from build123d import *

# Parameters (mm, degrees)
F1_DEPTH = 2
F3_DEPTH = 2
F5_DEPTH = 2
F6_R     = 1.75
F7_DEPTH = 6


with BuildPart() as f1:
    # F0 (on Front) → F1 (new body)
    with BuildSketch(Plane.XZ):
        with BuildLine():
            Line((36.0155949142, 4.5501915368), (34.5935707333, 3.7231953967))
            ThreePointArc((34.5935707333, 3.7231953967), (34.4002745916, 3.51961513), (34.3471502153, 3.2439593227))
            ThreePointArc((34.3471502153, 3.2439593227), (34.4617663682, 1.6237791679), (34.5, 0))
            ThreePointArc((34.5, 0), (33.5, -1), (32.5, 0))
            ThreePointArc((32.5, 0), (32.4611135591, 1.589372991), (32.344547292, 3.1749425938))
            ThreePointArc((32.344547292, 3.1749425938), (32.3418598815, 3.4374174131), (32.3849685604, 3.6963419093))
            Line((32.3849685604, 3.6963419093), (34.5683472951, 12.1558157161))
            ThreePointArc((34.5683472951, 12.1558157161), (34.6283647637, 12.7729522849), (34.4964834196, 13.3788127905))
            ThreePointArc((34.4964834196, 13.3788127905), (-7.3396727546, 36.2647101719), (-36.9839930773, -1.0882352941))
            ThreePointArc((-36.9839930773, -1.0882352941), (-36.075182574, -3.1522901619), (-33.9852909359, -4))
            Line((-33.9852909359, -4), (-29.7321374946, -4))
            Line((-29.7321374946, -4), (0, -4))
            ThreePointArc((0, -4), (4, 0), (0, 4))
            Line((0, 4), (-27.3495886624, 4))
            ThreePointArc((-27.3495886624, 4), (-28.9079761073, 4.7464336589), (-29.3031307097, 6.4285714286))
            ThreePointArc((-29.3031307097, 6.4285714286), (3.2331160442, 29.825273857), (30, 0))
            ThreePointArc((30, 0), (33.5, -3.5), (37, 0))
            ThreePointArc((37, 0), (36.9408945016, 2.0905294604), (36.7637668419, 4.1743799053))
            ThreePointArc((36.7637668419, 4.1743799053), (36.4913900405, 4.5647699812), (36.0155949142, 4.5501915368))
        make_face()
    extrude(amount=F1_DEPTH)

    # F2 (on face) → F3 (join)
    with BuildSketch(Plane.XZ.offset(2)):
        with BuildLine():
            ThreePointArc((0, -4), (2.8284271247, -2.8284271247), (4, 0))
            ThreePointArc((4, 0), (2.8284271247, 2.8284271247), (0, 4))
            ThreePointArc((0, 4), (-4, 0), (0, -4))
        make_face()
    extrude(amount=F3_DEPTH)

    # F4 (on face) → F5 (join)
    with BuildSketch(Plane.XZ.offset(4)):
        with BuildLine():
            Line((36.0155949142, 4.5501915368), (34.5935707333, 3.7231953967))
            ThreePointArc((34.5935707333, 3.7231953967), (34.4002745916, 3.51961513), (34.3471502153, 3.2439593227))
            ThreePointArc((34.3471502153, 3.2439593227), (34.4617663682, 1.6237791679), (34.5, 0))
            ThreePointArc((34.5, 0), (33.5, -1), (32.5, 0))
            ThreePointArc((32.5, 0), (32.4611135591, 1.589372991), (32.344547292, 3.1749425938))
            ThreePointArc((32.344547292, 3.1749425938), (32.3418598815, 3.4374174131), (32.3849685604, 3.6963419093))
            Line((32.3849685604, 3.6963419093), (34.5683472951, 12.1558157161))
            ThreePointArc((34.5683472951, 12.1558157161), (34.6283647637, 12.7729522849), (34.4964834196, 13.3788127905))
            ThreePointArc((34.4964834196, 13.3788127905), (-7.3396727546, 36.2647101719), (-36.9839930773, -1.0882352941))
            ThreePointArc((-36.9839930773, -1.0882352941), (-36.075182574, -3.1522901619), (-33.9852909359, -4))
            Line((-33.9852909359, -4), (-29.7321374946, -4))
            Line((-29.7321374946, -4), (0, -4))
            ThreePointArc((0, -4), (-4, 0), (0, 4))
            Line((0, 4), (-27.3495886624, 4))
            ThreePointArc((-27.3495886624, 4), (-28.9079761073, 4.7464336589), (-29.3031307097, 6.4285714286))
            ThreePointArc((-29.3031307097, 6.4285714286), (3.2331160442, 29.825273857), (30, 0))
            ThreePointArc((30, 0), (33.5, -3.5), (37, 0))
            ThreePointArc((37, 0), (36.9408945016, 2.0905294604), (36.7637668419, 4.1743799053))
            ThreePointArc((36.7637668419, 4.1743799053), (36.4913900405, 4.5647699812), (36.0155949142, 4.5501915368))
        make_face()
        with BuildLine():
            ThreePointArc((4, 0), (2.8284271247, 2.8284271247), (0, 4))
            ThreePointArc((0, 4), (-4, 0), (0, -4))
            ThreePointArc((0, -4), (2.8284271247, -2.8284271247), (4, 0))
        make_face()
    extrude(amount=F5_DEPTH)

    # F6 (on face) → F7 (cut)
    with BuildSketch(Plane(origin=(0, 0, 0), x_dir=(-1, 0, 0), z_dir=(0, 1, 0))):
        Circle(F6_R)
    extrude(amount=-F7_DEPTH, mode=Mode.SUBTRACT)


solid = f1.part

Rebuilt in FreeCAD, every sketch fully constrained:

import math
import FreeCAD as App
import Part
import Sketcher

V = App.Vector
Q = App.Units.Quantity

doc = App.newDocument("Part")
params = doc.addObject("Spreadsheet::Sheet", "Params")
for row, (alias, value) in enumerate([
    ("sketch1_radius", "1 mm"),
    ("sketch1_radius2", "2 mm"),
    ("sketch1_radius3", "37 mm"),
    ("sketch1_radius4", "3 mm"),
    ("sketch1_radius5", "4 mm"),
    ("pad1_length", "2 mm"),
    ("sketch2_radius", "4 mm"),
    ("pad2_length", "2 mm"),
    ("sketch3_radius", "1 mm"),
    ("sketch3_radius2", "2 mm"),
    ("sketch3_radius3", "37 mm"),
    ("sketch3_radius4", "3 mm"),
    ("sketch3_radius5", "4 mm"),
    ("pad3_length", "2 mm"),
    ("sketch4_diameter", "3.5 mm"),
    ("pocket1_length", "6 mm"),
], start=1):
    params.set(f"A{row}", alias)
    params.set(f"B{row}", "=" + value)
    params.setAlias(f"B{row}", alias)

body = doc.addObject("PartDesign::Body", "Body")

# Sketch on XZ plane
sketch1 = body.newObject("Sketcher::SketchObject", "Sketch")
sketch1.AttachmentSupport = (doc.getObject("XZ_Plane"), [""])
sketch1.MapMode = "FlatFace"
sketch1.addGeometry([
    Part.LineSegment(V(36.015595, 4.550192, 0), V(34.593571, 3.723195, 0)),  # 0
    Part.ArcOfCircle(Part.Circle(V(34.844935, 3.290973, 0), V(0, 0, 1), 0.5), math.radians(120.180683), math.radians(185.395367)),  # 1
    Part.ArcOfCircle(Part.Circle(V(0, 0, 0), V(0, 0, 1), 34.5), math.radians(0), math.radians(5.395367)),  # 2
    Part.ArcOfCircle(Part.Circle(V(33.5, 0, 0), V(0, 0, 1), 1), math.radians(180), math.radians(360)),  # 3
    Part.ArcOfCircle(Part.Circle(V(0, 0, 0), V(0, 0, 1), 32.5), math.radians(0), math.radians(5.606197)),  # 4
    Part.ArcOfCircle(Part.Circle(V(33.837373, 3.321478, 0), V(0, 0, 1), 1.5), math.radians(165.527873), math.radians(185.606197)),  # 5
    Part.LineSegment(V(32.384969, 3.696342, 0), V(34.568347, 12.155816, 0)),  # 6
    Part.ArcOfCircle(Part.Circle(V(32.631809, 12.655634, 0), V(0, 0, 1), 2), math.radians(-14.472127), math.radians(21.197847)),  # 7
    Part.ArcOfCircle(Part.Circle(V(0, 0, 0), V(0, 0, 1), 37), math.radians(21.197847), math.radians(181.685413)),  # 8
    Part.ArcOfCircle(Part.Circle(V(-33.985291, -1, 0), V(0, 0, 1), 3), math.radians(-178.314587), math.radians(-90)),  # 9
    Part.LineSegment(V(-33.985291, -4, 0), V(0, -4, 0)),  # 10
    Part.ArcOfCircle(Part.Circle(V(0, 0, 0), V(0, 0, 1), 4), math.radians(-90), math.radians(90)),  # 11
    Part.LineSegment(V(0, 4, 0), V(-27.349589, 4, 0)),  # 12
    Part.ArcOfCircle(Part.Circle(V(-27.349589, 6, 0), V(0, 0, 1), 2), math.radians(167.626375), math.radians(270)),  # 13
    Part.ArcOfCircle(Part.Circle(V(0, 0, 0), V(0, 0, 1), 30), math.radians(0), math.radians(167.626375)),  # 14
    Part.ArcOfCircle(Part.Circle(V(33.5, 0, 0), V(0, 0, 1), 3.5), math.radians(180), math.radians(360)),  # 15
    Part.ArcOfCircle(Part.Circle(V(0, 0, 0), V(0, 0, 1), 37), math.radians(0), math.radians(6.477964)),  # 16
    Part.ArcOfCircle(Part.Circle(V(36.266959, 4.117969, 0), V(0, 0, 1), 0.5), math.radians(6.477964), math.radians(120.180683)),  # 17
], False)
sketch1.addConstraint([
    Sketcher.Constraint("Tangent", 0, 2, 1, 1),
    Sketcher.Constraint("Tangent", 1, 2, 2, 2),
    Sketcher.Constraint("Tangent", 2, 1, 3, 2),
    Sketcher.Constraint("Tangent", 3, 1, 4, 1),
    Sketcher.Constraint("Tangent", 4, 2, 5, 2),
    Sketcher.Constraint("Tangent", 5, 1, 6, 1),
    Sketcher.Constraint("Tangent", 6, 2, 7, 1),
    Sketcher.Constraint("Tangent", 7, 2, 8, 1),
    Sketcher.Constraint("Tangent", 8, 2, 9, 1),
    Sketcher.Constraint("Tangent", 9, 2, 10, 1),
    Sketcher.Constraint("Tangent", 10, 2, 11, 1),
    Sketcher.Constraint("Tangent", 11, 2, 12, 1),
    Sketcher.Constraint("Tangent", 12, 2, 13, 2),
    Sketcher.Constraint("Tangent", 13, 1, 14, 2),
    Sketcher.Constraint("Tangent", 14, 1, 15, 1),
    Sketcher.Constraint("Tangent", 15, 2, 16, 1),
    Sketcher.Constraint("Tangent", 16, 2, 17, 1),
    Sketcher.Constraint("Tangent", 17, 2, 0, 1),
    Sketcher.Constraint("Horizontal", 10),
    Sketcher.Constraint("Horizontal", 12),
    Sketcher.Constraint("Coincident", 2, 3, -1, 1),
    Sketcher.Constraint("Coincident", 4, 3, -1, 1),
    Sketcher.Constraint("Coincident", 8, 3, -1, 1),
    Sketcher.Constraint("Coincident", 11, 3, -1, 1),
    Sketcher.Constraint("Coincident", 14, 3, -1, 1),
    Sketcher.Constraint("Coincident", 16, 3, -1, 1),
    Sketcher.Constraint("Coincident", 15, 3, 3, 3),
    Sketcher.Constraint("Equal", 7, 13),
    Sketcher.Constraint("Equal", 8, 16),
    Sketcher.Constraint("Equal", 1, 17),
    Sketcher.Constraint("PointOnObject", 3, 3, -1),
    Sketcher.Constraint("Radius", 3, Q("1 mm")),
    Sketcher.Constraint("Radius", 7, Q("2 mm")),
    Sketcher.Constraint("Radius", 8, Q("37 mm")),
    Sketcher.Constraint("Radius", 9, Q("3 mm")),
    Sketcher.Constraint("Radius", 11, Q("4 mm")),
    Sketcher.Constraint("Radius", 14, Q("30 mm")),
    Sketcher.Constraint("Radius", 1, Q("0.5 mm")),
    Sketcher.Constraint("Radius", 5, Q("1.5 mm")),
    Sketcher.Constraint("DistanceX", 5, 3, 0, 2, Q("0.756198 mm")),
    Sketcher.Constraint("DistanceY", 4, 2, 5, 1, Q("0.521399 mm")),
    Sketcher.Constraint("DistanceY", 5, 3, 16, 2, Q("0.852901 mm")),
    Sketcher.Constraint("DistanceY", -1, 1, 5, 3, Q("3.321478 mm")),
])
sketch1.setExpression("Constraints[31]", "Params.sketch1_radius")
sketch1.setExpression("Constraints[32]", "Params.sketch1_radius2")
sketch1.setExpression("Constraints[33]", "Params.sketch1_radius3")
sketch1.setExpression("Constraints[34]", "Params.sketch1_radius4")
sketch1.setExpression("Constraints[35]", "Params.sketch1_radius5")
pad1 = body.newObject("PartDesign::Pad", "Pad")
pad1.Profile = sketch1
pad1.setExpression("Length", "Params.pad1_length")

# Sketch on XZ plane
sketch2 = body.newObject("Sketcher::SketchObject", "Sketch001")
sketch2.AttachmentSupport = (doc.getObject("XZ_Plane"), [""])
sketch2.MapMode = "FlatFace"
sketch2.AttachmentOffset = App.Placement(V(0, 0, 2), App.Rotation())
sketch2.addGeometry([
    Part.ArcOfCircle(Part.Circle(V(0, 0, 0), V(0, 0, 1), 4), math.radians(-90), math.radians(0)),
    Part.ArcOfCircle(Part.Circle(V(0, 0, 0), V(0, 0, 1), 4), math.radians(0), math.radians(90)),
    Part.ArcOfCircle(Part.Circle(V(0, 0, 0), V(0, 0, 1), 4), math.radians(90), math.radians(270)),
], False)
sketch2.addConstraint([
    Sketcher.Constraint("Tangent", 0, 2, 1, 1),
    Sketcher.Constraint("Tangent", 1, 2, 2, 1),
    Sketcher.Constraint("Tangent", 2, 2, 0, 1),
    Sketcher.Constraint("Coincident", 0, 3, -1, 1),
    Sketcher.Constraint("PointOnObject", 0, 2, -1),
    Sketcher.Constraint("PointOnObject", 1, 2, -2),
    Sketcher.Constraint("PointOnObject", 2, 2, -2),
    Sketcher.Constraint("Radius", 0, Q("4 mm")),
])
sketch2.setExpression("Constraints[7]", "Params.sketch2_radius")
pad2 = body.newObject("PartDesign::Pad", "Pad001")
pad2.Profile = sketch2
pad2.setExpression("Length", "Params.pad2_length")

# Sketch on XZ plane
sketch3 = body.newObject("Sketcher::SketchObject", "Sketch002")
sketch3.AttachmentSupport = (doc.getObject("XZ_Plane"), [""])
sketch3.MapMode = "FlatFace"
sketch3.AttachmentOffset = App.Placement(V(0, 0, 4), App.Rotation())
sketch3.addGeometry([
    Part.LineSegment(V(36.015595, 4.550192, 0), V(34.593571, 3.723195, 0)),  # 0
    Part.ArcOfCircle(Part.Circle(V(34.844935, 3.290973, 0), V(0, 0, 1), 0.5), math.radians(120.180683), math.radians(185.395367)),  # 1
    Part.ArcOfCircle(Part.Circle(V(0, 0, 0), V(0, 0, 1), 34.5), math.radians(0), math.radians(5.395367)),  # 2
    Part.ArcOfCircle(Part.Circle(V(33.5, 0, 0), V(0, 0, 1), 1), math.radians(180), math.radians(360)),  # 3
    Part.ArcOfCircle(Part.Circle(V(0, 0, 0), V(0, 0, 1), 32.5), math.radians(0), math.radians(5.606197)),  # 4
    Part.ArcOfCircle(Part.Circle(V(33.837373, 3.321478, 0), V(0, 0, 1), 1.5), math.radians(165.527873), math.radians(185.606197)),  # 5
    Part.LineSegment(V(32.384969, 3.696342, 0), V(34.568347, 12.155816, 0)),  # 6
    Part.ArcOfCircle(Part.Circle(V(32.631809, 12.655634, 0), V(0, 0, 1), 2), math.radians(-14.472127), math.radians(21.197847)),  # 7
    Part.ArcOfCircle(Part.Circle(V(0, 0, 0), V(0, 0, 1), 37), math.radians(21.197847), math.radians(181.685413)),  # 8
    Part.ArcOfCircle(Part.Circle(V(-33.985291, -1, 0), V(0, 0, 1), 3), math.radians(-178.314587), math.radians(-90)),  # 9
    Part.LineSegment(V(-33.985291, -4, 0), V(0, -4, 0)),  # 10
    Part.ArcOfCircle(Part.Circle(V(0, 0, 0), V(0, 0, 1), 4), math.radians(-90), math.radians(0)),  # 11
    Part.ArcOfCircle(Part.Circle(V(0, 0, 0), V(0, 0, 1), 4), math.radians(0), math.radians(90)),  # 12
    Part.LineSegment(V(0, 4, 0), V(-27.349589, 4, 0)),  # 13
    Part.ArcOfCircle(Part.Circle(V(-27.349589, 6, 0), V(0, 0, 1), 2), math.radians(167.626375), math.radians(270)),  # 14
    Part.ArcOfCircle(Part.Circle(V(0, 0, 0), V(0, 0, 1), 30), math.radians(0), math.radians(167.626375)),  # 15
    Part.ArcOfCircle(Part.Circle(V(33.5, 0, 0), V(0, 0, 1), 3.5), math.radians(180), math.radians(360)),  # 16
    Part.ArcOfCircle(Part.Circle(V(0, 0, 0), V(0, 0, 1), 37), math.radians(0), math.radians(6.477964)),  # 17
    Part.ArcOfCircle(Part.Circle(V(36.266959, 4.117969, 0), V(0, 0, 1), 0.5), math.radians(6.477964), math.radians(120.180683)),  # 18
], False)
sketch3.addConstraint([
    Sketcher.Constraint("Tangent", 0, 2, 1, 1),
    Sketcher.Constraint("Tangent", 1, 2, 2, 2),
    Sketcher.Constraint("Tangent", 2, 1, 3, 2),
    Sketcher.Constraint("Tangent", 3, 1, 4, 1),
    Sketcher.Constraint("Tangent", 4, 2, 5, 2),
    Sketcher.Constraint("Tangent", 5, 1, 6, 1),
    Sketcher.Constraint("Tangent", 6, 2, 7, 1),
    Sketcher.Constraint("Tangent", 7, 2, 8, 1),
    Sketcher.Constraint("Tangent", 8, 2, 9, 1),
    Sketcher.Constraint("Tangent", 9, 2, 10, 1),
    Sketcher.Constraint("Tangent", 10, 2, 11, 1),
    Sketcher.Constraint("Tangent", 11, 2, 12, 1),
    Sketcher.Constraint("Tangent", 12, 2, 13, 1),
    Sketcher.Constraint("Tangent", 13, 2, 14, 2),
    Sketcher.Constraint("Tangent", 14, 1, 15, 2),
    Sketcher.Constraint("Tangent", 15, 1, 16, 1),
    Sketcher.Constraint("Tangent", 16, 2, 17, 1),
    Sketcher.Constraint("Tangent", 17, 2, 18, 1),
    Sketcher.Constraint("Tangent", 18, 2, 0, 1),
    Sketcher.Constraint("Horizontal", 10),
    Sketcher.Constraint("Horizontal", 13),
    Sketcher.Constraint("Coincident", 2, 3, -1, 1),
    Sketcher.Constraint("Coincident", 4, 3, -1, 1),
    Sketcher.Constraint("Coincident", 8, 3, -1, 1),
    Sketcher.Constraint("Coincident", 11, 3, -1, 1),
    Sketcher.Constraint("Coincident", 15, 3, -1, 1),
    Sketcher.Constraint("Coincident", 17, 3, -1, 1),
    Sketcher.Constraint("Coincident", 16, 3, 3, 3),
    Sketcher.Constraint("Equal", 11, 12),
    Sketcher.Constraint("Equal", 7, 14),
    Sketcher.Constraint("Equal", 8, 17),
    Sketcher.Constraint("Equal", 1, 18),
    Sketcher.Constraint("PointOnObject", 3, 3, -1),
    Sketcher.Constraint("PointOnObject", 11, 2, -1),
    Sketcher.Constraint("Radius", 3, Q("1 mm")),
    Sketcher.Constraint("Radius", 7, Q("2 mm")),
    Sketcher.Constraint("Radius", 8, Q("37 mm")),
    Sketcher.Constraint("Radius", 9, Q("3 mm")),
    Sketcher.Constraint("Radius", 11, Q("4 mm")),
    Sketcher.Constraint("Radius", 15, Q("30 mm")),
    Sketcher.Constraint("Radius", 1, Q("0.5 mm")),
    Sketcher.Constraint("Radius", 5, Q("1.5 mm")),
    Sketcher.Constraint("DistanceX", 5, 3, 0, 2, Q("0.756198 mm")),
    Sketcher.Constraint("DistanceY", 4, 2, 5, 1, Q("0.521399 mm")),
    Sketcher.Constraint("DistanceY", 5, 3, 17, 2, Q("0.852901 mm")),
    Sketcher.Constraint("DistanceY", -1, 1, 5, 3, Q("3.321478 mm")),
])
sketch3.setExpression("Constraints[34]", "Params.sketch3_radius")
sketch3.setExpression("Constraints[35]", "Params.sketch3_radius2")
sketch3.setExpression("Constraints[36]", "Params.sketch3_radius3")
sketch3.setExpression("Constraints[37]", "Params.sketch3_radius4")
sketch3.setExpression("Constraints[38]", "Params.sketch3_radius5")
pad3 = body.newObject("PartDesign::Pad", "Pad002")
pad3.Profile = sketch3
pad3.setExpression("Length", "Params.pad3_length")

# Sketch on XZ plane
sketch4 = body.newObject("Sketcher::SketchObject", "Sketch003")
sketch4.AttachmentSupport = (doc.getObject("XZ_Plane"), [""])
sketch4.MapMode = "FlatFace"
sketch4.addGeometry(Part.Circle(V(0, 0, 0), V(0, 0, 1), 1.75), False)
sketch4.addConstraint([
    Sketcher.Constraint("Coincident", 0, 3, -1, 1),
    Sketcher.Constraint("Diameter", 0, Q("3.5 mm")),
])
sketch4.setExpression("Constraints[1]", "Params.sketch4_diameter")
pocket1 = body.newObject("PartDesign::Pocket", "Pocket")
pocket1.Profile = sketch4
pocket1.setExpression("Length", "Params.pocket1_length")
pocket1.Reversed = True

doc.recompute()
